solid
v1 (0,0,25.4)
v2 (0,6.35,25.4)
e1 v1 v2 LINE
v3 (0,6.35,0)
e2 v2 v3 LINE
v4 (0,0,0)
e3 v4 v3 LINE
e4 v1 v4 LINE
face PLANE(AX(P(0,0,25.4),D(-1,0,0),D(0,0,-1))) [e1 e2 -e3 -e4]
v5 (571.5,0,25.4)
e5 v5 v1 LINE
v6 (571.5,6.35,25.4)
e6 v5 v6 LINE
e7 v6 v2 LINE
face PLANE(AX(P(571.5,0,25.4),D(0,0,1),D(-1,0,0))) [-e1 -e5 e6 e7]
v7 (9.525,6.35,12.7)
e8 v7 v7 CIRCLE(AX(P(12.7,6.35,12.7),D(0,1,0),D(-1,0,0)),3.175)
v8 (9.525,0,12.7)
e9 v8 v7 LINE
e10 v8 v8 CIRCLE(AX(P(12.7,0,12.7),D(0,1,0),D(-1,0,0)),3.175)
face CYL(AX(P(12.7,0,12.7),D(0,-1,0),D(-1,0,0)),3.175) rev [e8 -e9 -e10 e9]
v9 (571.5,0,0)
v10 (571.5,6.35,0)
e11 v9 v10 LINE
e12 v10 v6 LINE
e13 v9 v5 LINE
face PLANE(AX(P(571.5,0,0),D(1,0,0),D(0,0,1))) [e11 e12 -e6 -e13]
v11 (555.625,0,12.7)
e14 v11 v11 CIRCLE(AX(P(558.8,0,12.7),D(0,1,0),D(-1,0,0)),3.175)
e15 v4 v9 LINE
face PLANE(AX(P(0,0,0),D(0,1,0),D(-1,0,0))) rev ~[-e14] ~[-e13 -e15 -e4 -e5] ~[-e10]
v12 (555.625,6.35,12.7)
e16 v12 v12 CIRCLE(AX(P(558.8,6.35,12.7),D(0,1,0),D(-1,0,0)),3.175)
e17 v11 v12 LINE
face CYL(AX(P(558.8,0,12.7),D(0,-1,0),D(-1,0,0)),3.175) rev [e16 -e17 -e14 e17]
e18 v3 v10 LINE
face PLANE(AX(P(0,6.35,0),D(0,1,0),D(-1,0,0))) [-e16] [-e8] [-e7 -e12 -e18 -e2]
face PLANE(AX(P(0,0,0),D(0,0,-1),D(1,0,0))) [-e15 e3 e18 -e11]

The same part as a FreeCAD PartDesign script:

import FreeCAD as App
import Part
import Sketcher

V = App.Vector
Q = App.Units.Quantity


def add_polygon(sketch, points):
    """Adds a closed chain of lines whose ends are joined by coincident constraints."""
    first, n = sketch.GeometryCount, len(points)
    for a, b in zip(points, points[1:] + points[:1]):
        sketch.addGeometry(Part.LineSegment(App.Vector(*a, 0), App.Vector(*b, 0)), False)
    for i in range(n):
        sketch.addConstraint(Sketcher.Constraint("Coincident", first + i, 2, first + (i + 1) % n, 1))

doc = App.newDocument("Part")
body = doc.addObject("PartDesign::Body", "Body")

# Sketch on XZ plane
sketch1 = body.newObject("Sketcher::SketchObject", "Sketch")
sketch1.AttachmentSupport = (doc.getObject("XZ_Plane"), [""])
sketch1.MapMode = "FlatFace"
add_polygon(sketch1, [(571.5, 0), (0, 0), (0, 25.4), (571.5, 25.4)])  # lines 0-3
sketch1.addGeometry(Part.Circle(V(558.8, 12.7, 0), V(0, 0, 1), 3.175), False)  # 4
sketch1.addGeometry(Part.Circle(V(12.7, 12.7, 0), V(0, 0, 1), 3.175), False)  # 5
sketch1.addConstraint(Sketcher.Constraint("Horizontal", 0))
sketch1.addConstraint(Sketcher.Constraint("Vertical", 1))
sketch1.addConstraint(Sketcher.Constraint("Horizontal", 2))
sketch1.addConstraint(Sketcher.Constraint("Vertical", 3))
sketch1.addConstraint(Sketcher.Constraint("Coincident", 0, 2, -1, 1))
sketch1.addConstraint(Sketcher.Constraint("Equal", 4, 5))
sketch1.addConstraint(Sketcher.Constraint("Horizontal", 4, 3, 5, 3))
sketch1.addConstraint(Sketcher.Constraint("Diameter", 4, Q("0.25 in")))
sketch1.addConstraint(Sketcher.Constraint("DistanceY", 1, 1, 1, 2, Q("1 in")))
sketch1.addConstraint(Sketcher.Constraint("DistanceX", 0, 2, 0, 1, Q("22.5 in")))
sketch1.addConstraint(Sketcher.Constraint("DistanceY", -1, 1, 4, 3, Q("0.5 in")))
sketch1.addConstraint(Sketcher.Constraint("DistanceX", -1, 1, 5, 3, Q("0.5 in")))
sketch1.addConstraint(Sketcher.Constraint("DistanceX", 4, 3, 2, 2, Q("0.5 in")))
pad1 = body.newObject("PartDesign::Pad", "Pad")
pad1.Profile = sketch1
pad1.Length = Q("0.25 in")
pad1.Reversed = True

doc.recompute()
